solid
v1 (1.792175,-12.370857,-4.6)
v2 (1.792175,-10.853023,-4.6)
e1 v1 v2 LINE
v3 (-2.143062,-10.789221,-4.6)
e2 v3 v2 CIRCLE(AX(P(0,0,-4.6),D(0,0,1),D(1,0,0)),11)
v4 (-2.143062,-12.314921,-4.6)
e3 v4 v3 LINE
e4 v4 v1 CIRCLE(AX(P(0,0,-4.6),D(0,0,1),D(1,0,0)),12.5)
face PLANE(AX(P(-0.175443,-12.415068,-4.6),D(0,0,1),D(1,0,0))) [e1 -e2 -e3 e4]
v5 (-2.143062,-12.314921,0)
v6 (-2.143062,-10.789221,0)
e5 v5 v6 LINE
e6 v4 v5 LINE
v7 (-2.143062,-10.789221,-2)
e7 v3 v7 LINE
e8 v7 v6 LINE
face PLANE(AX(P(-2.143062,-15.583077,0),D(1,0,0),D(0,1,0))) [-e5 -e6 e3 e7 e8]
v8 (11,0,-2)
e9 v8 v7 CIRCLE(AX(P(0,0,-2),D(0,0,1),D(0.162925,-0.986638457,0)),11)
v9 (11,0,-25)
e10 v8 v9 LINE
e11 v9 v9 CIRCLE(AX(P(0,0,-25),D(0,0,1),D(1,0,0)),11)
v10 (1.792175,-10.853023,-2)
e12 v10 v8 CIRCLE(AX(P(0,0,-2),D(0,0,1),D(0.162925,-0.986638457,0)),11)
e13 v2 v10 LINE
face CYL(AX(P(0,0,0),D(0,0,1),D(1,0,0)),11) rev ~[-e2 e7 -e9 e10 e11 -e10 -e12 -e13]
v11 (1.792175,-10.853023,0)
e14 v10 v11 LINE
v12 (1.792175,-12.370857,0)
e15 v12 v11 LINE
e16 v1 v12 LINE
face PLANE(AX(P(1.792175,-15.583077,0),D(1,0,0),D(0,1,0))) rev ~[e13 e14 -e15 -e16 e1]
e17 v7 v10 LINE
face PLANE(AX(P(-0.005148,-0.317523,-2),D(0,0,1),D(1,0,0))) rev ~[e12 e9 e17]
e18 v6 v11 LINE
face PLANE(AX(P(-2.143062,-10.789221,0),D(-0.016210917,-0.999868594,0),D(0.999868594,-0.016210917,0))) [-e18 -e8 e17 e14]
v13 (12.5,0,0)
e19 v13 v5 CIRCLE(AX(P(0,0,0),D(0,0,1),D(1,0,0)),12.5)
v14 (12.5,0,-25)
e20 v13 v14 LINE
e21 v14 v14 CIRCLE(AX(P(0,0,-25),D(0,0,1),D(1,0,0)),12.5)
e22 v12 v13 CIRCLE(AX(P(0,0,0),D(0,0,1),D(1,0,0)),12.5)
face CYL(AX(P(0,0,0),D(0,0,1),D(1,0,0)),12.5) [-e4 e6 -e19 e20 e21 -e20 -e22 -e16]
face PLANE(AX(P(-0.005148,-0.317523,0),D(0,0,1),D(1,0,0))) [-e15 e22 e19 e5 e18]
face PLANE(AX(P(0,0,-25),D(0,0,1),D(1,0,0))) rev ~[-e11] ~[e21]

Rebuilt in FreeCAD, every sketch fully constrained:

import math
import FreeCAD as App
import Part
import Sketcher

V = App.Vector

doc = App.newDocument("Part")
body = doc.addObject("PartDesign::Body", "Body")

# Sketch on XY plane
sketch1 = doc.addObject("Sketcher::SketchObject", "Sketch")
body.addObject(sketch1)
sketch1.AttachmentSupport = (doc.XY_Plane, [""])
sketch1.MapMode = "FlatFace"
sketch1.addGeometry(Part.Circle(V(0, 0, 0), V(0, 0, 1), 12), False)
sketch1.addGeometry(Part.Circle(V(0, 0, 0), V(0, 0, 1), 11), False)
sketch1.addConstraint(Sketcher.Constraint("Coincident", 0, 3, -1, 1))
sketch1.addConstraint(Sketcher.Constraint("Coincident", 1, 3, -1, 1))
sketch1.addConstraint(Sketcher.Constraint("Diameter", 0, 25.0))
sketch1.addConstraint(Sketcher.Constraint("Diameter", 1, 22.0))
pad1 = doc.addObject("PartDesign::Pad", "Pad")
body.addObject(pad1)
pad1.Profile = sketch1
pad1.Length = 25
pad1.Reversed = True

# Sketch on XY plane
sketch2 = doc.addObject("Sketcher::SketchObject", "Sketch001")
body.addObject(sketch2)
sketch2.AttachmentSupport = (doc.XY_Plane, [""])
sketch2.MapMode = "FlatFace"
sketch2.addGeometry(Part.LineSegment(V(-2.1, -9.2, 0), V(-2.1, -15.6, 0)), False)
sketch2.addGeometry(Part.LineSegment(V(-2.1, -15.6, 0), V(1.8, -15.6, 0)), False)
sketch2.addGeometry(Part.LineSegment(V(1.8, -15.6, 0), V(1.8, -9.2, 0)), False)
sketch2.addGeometry(Part.LineSegment(V(1.8, -9.2, 0), V(-2.1, -9.2, 0)), False)
sketch2.addConstraint(Sketcher.Constraint("Coincident", 0, 2, 1, 1))
sketch2.addConstraint(Sketcher.Constraint("Coincident", 1, 2, 2, 1))
sketch2.addConstraint(Sketcher.Constraint("Coincident", 2, 2, 3, 1))
sketch2.addConstraint(Sketcher.Constraint("Coincident", 3, 2, 0, 1))
sketch2.addConstraint(Sketcher.Constraint("Vertical", 0))
sketch2.addConstraint(Sketcher.Constraint("Horizontal", 1))
sketch2.addConstraint(Sketcher.Constraint("Vertical", 2))
sketch2.addConstraint(Sketcher.Constraint("Horizontal", 3))
sketch2.addConstraint(Sketcher.Constraint("DistanceX", 1, 1, 1, 2, 3.935237))
sketch2.addConstraint(Sketcher.Constraint("DistanceY", 0, 2, 0, 1, 6.336017))
sketch2.addConstraint(Sketcher.Constraint("DistanceX", 0, 2, -1, 1, 2.143062))
sketch2.addConstraint(Sketcher.Constraint("DistanceY", 2, 2, -1, 1, 9.24706))
pocket1 = doc.addObject("PartDesign::Pocket", "Pocket")
body.addObject(pocket1)
pocket1.Profile = sketch2
pocket1.Length = 4.6

# Sketch on XY plane
sketch3 = doc.addObject("Sketcher::SketchObject", "Sketch002")
body.addObject(sketch3)
sketch3.AttachmentSupport = (doc.XY_Plane, [""])
sketch3.MapMode = "FlatFace"
sketch3.addGeometry(Part.LineSegment(V(-2.1, -10.8, 0), V(1.8, -10.9, 0)), False)
sketch3.addGeometry(Part.ArcOfCircle(Part.Circle(V(0, 0, 0), V(0, 0, 1), 11), math.radians(-81), math.radians(259)), False)
sketch3.addConstraint(Sketcher.Constraint("Coincident", 0, 1, 1, 2))
sketch3.addConstraint(Sketcher.Constraint("Coincident", 1, 1, 0, 2))
sketch3.addConstraint(Sketcher.Constraint("Coincident", 1, 3, -1, 1))
sketch3.addConstraint(Sketcher.Constraint("Radius", 1, 11.0))
sketch3.addConstraint(Sketcher.Constraint("DistanceX", 0, 1, -1, 1, 2.143062))
sketch3.addConstraint(Sketcher.Constraint("Distance", 0, 3.935754))
pad2 = doc.addObject("PartDesign::Pad", "Pad001")
body.addObject(pad2)
pad2.Profile = sketch3
pad2.Length = 2
pad2.Reversed = True

doc.recompute()
